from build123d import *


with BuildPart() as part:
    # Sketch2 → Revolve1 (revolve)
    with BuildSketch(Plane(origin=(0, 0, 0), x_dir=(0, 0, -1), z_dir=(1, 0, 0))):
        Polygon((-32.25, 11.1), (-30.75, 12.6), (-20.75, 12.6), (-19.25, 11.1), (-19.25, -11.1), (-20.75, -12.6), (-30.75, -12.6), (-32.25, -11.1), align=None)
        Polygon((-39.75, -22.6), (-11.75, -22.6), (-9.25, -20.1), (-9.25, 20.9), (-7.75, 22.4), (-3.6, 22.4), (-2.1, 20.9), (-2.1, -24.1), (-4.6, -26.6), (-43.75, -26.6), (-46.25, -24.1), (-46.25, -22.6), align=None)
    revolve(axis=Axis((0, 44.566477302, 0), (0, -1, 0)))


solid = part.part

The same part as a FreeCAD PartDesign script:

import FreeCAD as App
import Part
import Sketcher

V = App.Vector
Q = App.Units.Quantity

doc = App.newDocument("Part")
params = doc.addObject("Spreadsheet::Sheet", "Params")
for row, (alias, value) in enumerate([
    ("sketch1_width", "45 mm"),
    ("sketch1_width2", "41 mm"),
    ("sketch1_height", "10 mm"),
    ("sketch1_width3", "22.2 mm"),
    ("sketch1_width4", "1.5 mm"),
    ("revolution_angle", "360 deg"),
], start=1):
    params.set(f"A{row}", alias)
    params.set(f"B{row}", "=" + value)
    params.setAlias(f"B{row}", alias)

body = doc.addObject("PartDesign::Body", "Body")
body.AllowCompound = True

# Sketch on YZ plane
sketch1 = doc.addObject("Sketcher::SketchObject", "Sketch")
body.addObject(sketch1)
sketch1.AttachmentSupport = (doc.YZ_Plane, [""])
sketch1.MapMode = "FlatFace"
sketch1.addGeometry(Part.LineSegment(V(12.6, 30.75, 0), V(11.1, 32.25, 0)), False)
sketch1.addGeometry(Part.LineSegment(V(11.1, 32.25, 0), V(-11.1, 32.25, 0)), False)
sketch1.addGeometry(Part.LineSegment(V(-11.1, 32.25, 0), V(-12.6, 30.75, 0)), False)
sketch1.addGeometry(Part.LineSegment(V(-12.6, 30.75, 0), V(-12.6, 20.75, 0)), False)
sketch1.addGeometry(Part.LineSegment(V(-12.6, 20.75, 0), V(-11.1, 19.25, 0)), False)
sketch1.addGeometry(Part.LineSegment(V(-11.1, 19.25, 0), V(11.1, 19.25, 0)), False)
sketch1.addGeometry(Part.LineSegment(V(11.1, 19.25, 0), V(12.6, 20.75, 0)), False)
sketch1.addGeometry(Part.LineSegment(V(12.6, 20.75, 0), V(12.6, 30.75, 0)), False)
sketch1.addGeometry(Part.LineSegment(V(-22.6, 11.75, 0), V(-22.6, 46.25, 0)), False)
sketch1.addGeometry(Part.LineSegment(V(-22.6, 46.25, 0), V(-24.1, 46.25, 0)), False)
sketch1.addGeometry(Part.LineSegment(V(-24.1, 46.25, 0), V(-26.6, 43.75, 0)), False)
sketch1.addGeometry(Part.LineSegment(V(-26.6, 43.75, 0), V(-26.6, 4.6, 0)), False)
sketch1.addGeometry(Part.LineSegment(V(-26.6, 4.6, 0), V(-24.1, 2.1, 0)), False)
sketch1.addGeometry(Part.LineSegment(V(-24.1, 2.1, 0), V(20.9, 2.1, 0)), False)
sketch1.addGeometry(Part.LineSegment(V(20.9, 2.1, 0), V(22.4, 3.6, 0)), False)
sketch1.addGeometry(Part.LineSegment(V(22.4, 3.6, 0), V(22.4, 7.75, 0)), False)
sketch1.addGeometry(Part.LineSegment(V(22.4, 7.75, 0), V(20.9, 9.25, 0)), False)
sketch1.addGeometry(Part.LineSegment(V(20.9, 9.25, 0), V(-20.1, 9.25, 0)), False)
sketch1.addGeometry(Part.LineSegment(V(-20.1, 9.25, 0), V(-22.6, 11.75, 0)), False)
sketch1.addConstraint(Sketcher.Constraint("Coincident", 0, 2, 1, 1))
sketch1.addConstraint(Sketcher.Constraint("Coincident", 1, 2, 2, 1))
sketch1.addConstraint(Sketcher.Constraint("Coincident", 2, 2, 3, 1))
sketch1.addConstraint(Sketcher.Constraint("Coincident", 3, 2, 4, 1))
sketch1.addConstraint(Sketcher.Constraint("Coincident", 4, 2, 5, 1))
sketch1.addConstraint(Sketcher.Constraint("Coincident", 5, 2, 6, 1))
sketch1.addConstraint(Sketcher.Constraint("Coincident", 6, 2, 7, 1))
sketch1.addConstraint(Sketcher.Constraint("Coincident", 7, 2, 0, 1))
sketch1.addConstraint(Sketcher.Constraint("Coincident", 8, 2, 9, 1))
sketch1.addConstraint(Sketcher.Constraint("Coincident", 9, 2, 10, 1))
sketch1.addConstraint(Sketcher.Constraint("Coincident", 10, 2, 11, 1))
sketch1.addConstraint(Sketcher.Constraint("Coincident", 11, 2, 12, 1))
sketch1.addConstraint(Sketcher.Constraint("Coincident", 12, 2, 13, 1))
sketch1.addConstraint(Sketcher.Constraint("Coincident", 13, 2, 14, 1))
sketch1.addConstraint(Sketcher.Constraint("Coincident", 14, 2, 15, 1))
sketch1.addConstraint(Sketcher.Constraint("Coincident", 15, 2, 16, 1))
sketch1.addConstraint(Sketcher.Constraint("Coincident", 16, 2, 17, 1))
sketch1.addConstraint(Sketcher.Constraint("Coincident", 17, 2, 18, 1))
sketch1.addConstraint(Sketcher.Constraint("Coincident", 18, 2, 8, 1))
sketch1.addConstraint(Sketcher.Constraint("Horizontal", 1))
sketch1.addConstraint(Sketcher.Constraint("Vertical", 3))
sketch1.addConstraint(Sketcher.Constraint("Horizontal", 5))
sketch1.addConstraint(Sketcher.Constraint("Vertical", 7))
sketch1.addConstraint(Sketcher.Constraint("Vertical", 8))
sketch1.addConstraint(Sketcher.Constraint("Horizontal", 9))
sketch1.addConstraint(Sketcher.Constraint("Vertical", 11))
sketch1.addConstraint(Sketcher.Constraint("Horizontal", 13))
sketch1.addConstraint(Sketcher.Constraint("Vertical", 15))
sketch1.addConstraint(Sketcher.Constraint("Horizontal", 17))
sketch1.addConstraint(Sketcher.Constraint("Symmetric", 3, 2, 6, 2, -2))
sketch1.addConstraint(Sketcher.Constraint("Perpendicular", 0, 2))
sketch1.addConstraint(Sketcher.Constraint("Perpendicular", 2, 4))
sketch1.addConstraint(Sketcher.Constraint("Perpendicular", 4, 6))
sketch1.addConstraint(Sketcher.Constraint("Parallel", 6, 10))
sketch1.addConstraint(Sketcher.Constraint("Perpendicular", 10, 12))
sketch1.addConstraint(Sketcher.Constraint("Perpendicular", 12, 14))
sketch1.addConstraint(Sketcher.Constraint("Perpendicular", 14, 16))
sketch1.addConstraint(Sketcher.Constraint("Parallel", 16, 18))
sketch1.addConstraint(Sketcher.Constraint("Horizontal", 2, 2, 7, 2))
sketch1.addConstraint(Sketcher.Constraint("Vertical", 1, 2, 4, 2))
sketch1.addConstraint(Sketcher.Constraint("Vertical", 0, 2, 5, 2))
sketch1.addConstraint(Sketcher.Constraint("Vertical", 9, 2, 12, 2))
sketch1.addConstraint(Sketcher.Constraint("Vertical", 13, 2, 16, 2))
sketch1.addConstraint(Sketcher.Constraint("Equal", 6, 14))
sketch1.addConstraint(Sketcher.Constraint("Equal", 12, 18))
sketch1.addConstraint(Sketcher.Constraint("DistanceX", 13, 1, 13, 2, Q("45 mm")))
sketch1.addConstraint(Sketcher.Constraint("DistanceX", 17, 2, 17, 1, Q("41 mm")))
sketch1.addConstraint(Sketcher.Constraint("DistanceY", 3, 2, 3, 1, Q("10 mm")))
sketch1.addConstraint(Sketcher.Constraint("DistanceX", 1, 2, 1, 1, Q("22.2 mm")))
sketch1.addConstraint(Sketcher.Constraint("DistanceX", 9, 2, 9, 1, Q("1.5 mm")))
sketch1.addConstraint(Sketcher.Constraint("DistanceY", 8, 1, 8, 2, Q("34.5 mm")))
sketch1.addConstraint(Sketcher.Constraint("DistanceY", 4, 2, 1, 2, Q("13 mm")))
sketch1.addConstraint(Sketcher.Constraint("DistanceY", 1, 2, 8, 2, Q("14 mm")))
sketch1.addConstraint(Sketcher.Constraint("DistanceX", 8, 2, 2, 2, Q("10 mm")))
sketch1.addConstraint(Sketcher.Constraint("DistanceY", 11, 2, 11, 1, Q("39.15 mm")))
sketch1.addConstraint(Sketcher.Constraint("DistanceY", -1, 1, 11, 2, Q("4.6 mm")))
sketch1.setExpression("Constraints[45]", "Params.sketch1_width")
sketch1.setExpression("Constraints[46]", "Params.sketch1_width2")
sketch1.setExpression("Constraints[47]", "Params.sketch1_height")
sketch1.setExpression("Constraints[48]", "Params.sketch1_width3")
sketch1.setExpression("Constraints[49]", "Params.sketch1_width4")
revolution = doc.addObject("PartDesign::Revolution", "Revolution")
body.addObject(revolution)
revolution.Profile = sketch1
revolution.ReferenceAxis = (sketch1, ["H_Axis"])
revolution.setExpression("Angle", "Params.revolution_angle")

doc.recompute()
